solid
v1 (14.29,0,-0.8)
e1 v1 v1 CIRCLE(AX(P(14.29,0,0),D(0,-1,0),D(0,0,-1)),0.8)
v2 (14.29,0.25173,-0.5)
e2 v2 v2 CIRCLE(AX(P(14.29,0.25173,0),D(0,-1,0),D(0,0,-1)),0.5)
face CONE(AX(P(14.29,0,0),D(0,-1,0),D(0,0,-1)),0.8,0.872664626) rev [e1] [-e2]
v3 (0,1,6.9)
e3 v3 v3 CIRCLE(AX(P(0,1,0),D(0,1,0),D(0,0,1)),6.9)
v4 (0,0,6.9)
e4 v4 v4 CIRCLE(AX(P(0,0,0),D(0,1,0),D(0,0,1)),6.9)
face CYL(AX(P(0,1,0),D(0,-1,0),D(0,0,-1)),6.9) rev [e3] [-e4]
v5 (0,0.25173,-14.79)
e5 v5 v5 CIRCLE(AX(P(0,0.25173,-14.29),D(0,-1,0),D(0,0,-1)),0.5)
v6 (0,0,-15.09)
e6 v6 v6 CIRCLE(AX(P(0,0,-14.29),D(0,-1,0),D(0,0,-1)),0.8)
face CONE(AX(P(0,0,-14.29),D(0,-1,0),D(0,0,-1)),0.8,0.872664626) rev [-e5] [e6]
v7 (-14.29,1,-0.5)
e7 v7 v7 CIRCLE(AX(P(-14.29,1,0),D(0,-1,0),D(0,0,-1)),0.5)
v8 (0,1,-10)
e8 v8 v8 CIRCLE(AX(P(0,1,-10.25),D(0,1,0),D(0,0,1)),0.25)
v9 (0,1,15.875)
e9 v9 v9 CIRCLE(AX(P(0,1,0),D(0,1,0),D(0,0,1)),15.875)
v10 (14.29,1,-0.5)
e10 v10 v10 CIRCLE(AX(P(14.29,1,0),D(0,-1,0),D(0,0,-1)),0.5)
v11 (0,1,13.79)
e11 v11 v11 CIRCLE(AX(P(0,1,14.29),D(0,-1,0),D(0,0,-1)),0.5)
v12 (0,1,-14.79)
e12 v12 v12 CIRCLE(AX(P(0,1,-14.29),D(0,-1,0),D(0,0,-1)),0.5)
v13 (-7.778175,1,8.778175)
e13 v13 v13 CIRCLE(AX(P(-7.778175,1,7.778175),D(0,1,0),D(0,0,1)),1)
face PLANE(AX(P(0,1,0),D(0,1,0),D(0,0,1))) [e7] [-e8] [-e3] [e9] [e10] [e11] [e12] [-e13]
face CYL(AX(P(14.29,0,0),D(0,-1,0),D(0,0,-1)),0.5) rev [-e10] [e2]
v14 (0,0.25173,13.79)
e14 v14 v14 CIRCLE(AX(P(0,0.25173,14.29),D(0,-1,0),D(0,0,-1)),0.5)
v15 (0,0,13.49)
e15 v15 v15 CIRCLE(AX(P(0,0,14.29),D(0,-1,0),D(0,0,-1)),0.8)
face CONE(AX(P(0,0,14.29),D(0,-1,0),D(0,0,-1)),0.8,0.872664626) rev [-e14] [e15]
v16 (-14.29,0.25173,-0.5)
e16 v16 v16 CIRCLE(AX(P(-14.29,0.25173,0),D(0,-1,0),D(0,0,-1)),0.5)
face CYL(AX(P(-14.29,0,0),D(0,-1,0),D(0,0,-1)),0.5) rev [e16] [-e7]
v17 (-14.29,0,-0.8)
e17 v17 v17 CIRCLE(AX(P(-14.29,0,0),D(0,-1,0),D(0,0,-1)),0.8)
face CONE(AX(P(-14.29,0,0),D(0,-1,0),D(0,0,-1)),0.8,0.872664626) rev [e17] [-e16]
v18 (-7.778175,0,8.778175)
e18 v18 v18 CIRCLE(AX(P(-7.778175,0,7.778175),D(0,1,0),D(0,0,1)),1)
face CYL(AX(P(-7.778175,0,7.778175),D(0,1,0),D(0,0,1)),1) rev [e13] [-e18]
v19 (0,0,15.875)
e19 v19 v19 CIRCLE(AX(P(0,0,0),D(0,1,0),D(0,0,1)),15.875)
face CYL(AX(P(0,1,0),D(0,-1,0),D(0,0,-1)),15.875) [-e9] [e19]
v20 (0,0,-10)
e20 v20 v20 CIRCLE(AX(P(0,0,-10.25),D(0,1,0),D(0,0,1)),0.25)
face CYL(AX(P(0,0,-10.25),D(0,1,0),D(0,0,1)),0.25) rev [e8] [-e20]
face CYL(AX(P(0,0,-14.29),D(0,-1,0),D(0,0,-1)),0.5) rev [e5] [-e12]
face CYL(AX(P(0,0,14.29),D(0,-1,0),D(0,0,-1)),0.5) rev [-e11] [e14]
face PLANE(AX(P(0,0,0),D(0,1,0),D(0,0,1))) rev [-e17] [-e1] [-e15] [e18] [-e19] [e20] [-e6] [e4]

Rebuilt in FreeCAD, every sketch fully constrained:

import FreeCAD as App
import Part
import Sketcher
from FreeCAD import Vector
Q = App.Units.Quantity

doc = App.newDocument("Part")
body = doc.addObject("PartDesign::Body", "Body")

# Sketch on XZ plane
sketch1 = doc.addObject("Sketcher::SketchObject", "Sketch")
body.addObject(sketch1)
sketch1.AttachmentSupport = (doc.XZ_Plane, [""])
sketch1.MapMode = "FlatFace"
sketch1.addGeometry(Part.Circle(Vector(0, 0, 0), Vector(0, 0, 1), 16), False)
sketch1.addGeometry(Part.Circle(Vector(0, 0, 0), Vector(0, 0, 1), 7), False)
sketch1.addConstraint(Sketcher.Constraint("Coincident", 0, 3, -1, 1))
sketch1.addConstraint(Sketcher.Constraint("Coincident", 1, 3, -1, 1))
sketch1.addConstraint(Sketcher.Constraint("Diameter", 1, Q("13.8 mm")))
sketch1.addConstraint(Sketcher.Constraint("Diameter", 0, Q("31.75 mm")))
pad1 = doc.addObject("PartDesign::Pad", "Pad")
body.addObject(pad1)
pad1.Profile = sketch1
pad1.Length = 1
pad1.Reversed = True

# Sketch on XZ plane
sketch2 = doc.addObject("Sketcher::SketchObject", "Sketch001")
body.addObject(sketch2)
sketch2.AttachmentSupport = (doc.XZ_Plane, [""])
sketch2.MapMode = "FlatFace"
sketch2.addGeometry(Part.Circle(Vector(0, 14.3, 0), Vector(0, 0, 1), 0.5), False)
sketch2.addGeometry(Part.Circle(Vector(14.3, 0, 0), Vector(0, 0, 1), 0.5), False)
sketch2.addGeometry(Part.Circle(Vector(0, -14.3, 0), Vector(0, 0, 1), 0.5), False)
sketch2.addGeometry(Part.Circle(Vector(-14.3, 0, 0), Vector(0, 0, 1), 0.5), False)
sketch2.addConstraint(Sketcher.Constraint("Equal", 0, 1))
sketch2.addConstraint(Sketcher.Constraint("Equal", 1, 2))
sketch2.addConstraint(Sketcher.Constraint("Equal", 2, 3))
sketch2.addConstraint(Sketcher.Constraint("Symmetric", 0, 3, 2, 3, -1, 1))
sketch2.addConstraint(Sketcher.Constraint("Symmetric", 1, 3, 3, 3, -1, 1))
sketch2.addConstraint(Sketcher.Constraint("PointOnObject", 0, 3, -2))
sketch2.addConstraint(Sketcher.Constraint("PointOnObject", 1, 3, -1))
sketch2.addConstraint(Sketcher.Constraint("Diameter", 0, Q("1 mm")))
sketch2.addConstraint(Sketcher.Constraint("DistanceY", -1, 1, 0, 3, Q("14.29 mm")))
sketch2.addConstraint(Sketcher.Constraint("DistanceX", -1, 1, 1, 3, Q("14.29 mm")))
doc.recompute()
hole = doc.addObject("PartDesign::Hole", "Hole")
body.addObject(hole)
hole.Profile = sketch2
hole.ThreadType = "None"
hole.Diameter = 1
hole.DepthType = "ThroughAll"
hole.HoleCutType = "Countersink"
hole.HoleCutDiameter = 1.6
hole.HoleCutCountersinkAngle = 100

# Sketch on XZ plane
sketch3 = doc.addObject("Sketcher::SketchObject", "Sketch002")
body.addObject(sketch3)
sketch3.AttachmentSupport = (doc.XZ_Plane, [""])
sketch3.MapMode = "FlatFace"
sketch3.AttachmentOffset = App.Placement(Vector(0, 0, -1), App.Rotation())
sketch3.addGeometry(Part.Circle(Vector(0, -10.25, 0), Vector(0, 0, 1), 0.25), False)
sketch3.addGeometry(Part.Circle(Vector(-7.78, 7.78, 0), Vector(0, 0, 1), 1), False)
sketch3.addConstraint(Sketcher.Constraint("PointOnObject", 0, 3, -2))
sketch3.addConstraint(Sketcher.Constraint("Diameter", 1, Q("2 mm")))
sketch3.addConstraint(Sketcher.Constraint("Diameter", 0, Q("0.5 mm")))
sketch3.addConstraint(Sketcher.Constraint("DistanceY", 0, 3, -1, 1, Q("10.25 mm")))
sketch3.addConstraint(Sketcher.Constraint("DistanceX", 1, 3, -1, 1, Q("7.778175 mm")))
sketch3.addConstraint(Sketcher.Constraint("DistanceY", -1, 1, 1, 3, Q("7.778175 mm")))
pocket1 = doc.addObject("PartDesign::Pocket", "Pocket")
body.addObject(pocket1)
pocket1.Profile = sketch3
pocket1.Type = "ThroughAll"
pocket1.Midplane = True

doc.recompute()
